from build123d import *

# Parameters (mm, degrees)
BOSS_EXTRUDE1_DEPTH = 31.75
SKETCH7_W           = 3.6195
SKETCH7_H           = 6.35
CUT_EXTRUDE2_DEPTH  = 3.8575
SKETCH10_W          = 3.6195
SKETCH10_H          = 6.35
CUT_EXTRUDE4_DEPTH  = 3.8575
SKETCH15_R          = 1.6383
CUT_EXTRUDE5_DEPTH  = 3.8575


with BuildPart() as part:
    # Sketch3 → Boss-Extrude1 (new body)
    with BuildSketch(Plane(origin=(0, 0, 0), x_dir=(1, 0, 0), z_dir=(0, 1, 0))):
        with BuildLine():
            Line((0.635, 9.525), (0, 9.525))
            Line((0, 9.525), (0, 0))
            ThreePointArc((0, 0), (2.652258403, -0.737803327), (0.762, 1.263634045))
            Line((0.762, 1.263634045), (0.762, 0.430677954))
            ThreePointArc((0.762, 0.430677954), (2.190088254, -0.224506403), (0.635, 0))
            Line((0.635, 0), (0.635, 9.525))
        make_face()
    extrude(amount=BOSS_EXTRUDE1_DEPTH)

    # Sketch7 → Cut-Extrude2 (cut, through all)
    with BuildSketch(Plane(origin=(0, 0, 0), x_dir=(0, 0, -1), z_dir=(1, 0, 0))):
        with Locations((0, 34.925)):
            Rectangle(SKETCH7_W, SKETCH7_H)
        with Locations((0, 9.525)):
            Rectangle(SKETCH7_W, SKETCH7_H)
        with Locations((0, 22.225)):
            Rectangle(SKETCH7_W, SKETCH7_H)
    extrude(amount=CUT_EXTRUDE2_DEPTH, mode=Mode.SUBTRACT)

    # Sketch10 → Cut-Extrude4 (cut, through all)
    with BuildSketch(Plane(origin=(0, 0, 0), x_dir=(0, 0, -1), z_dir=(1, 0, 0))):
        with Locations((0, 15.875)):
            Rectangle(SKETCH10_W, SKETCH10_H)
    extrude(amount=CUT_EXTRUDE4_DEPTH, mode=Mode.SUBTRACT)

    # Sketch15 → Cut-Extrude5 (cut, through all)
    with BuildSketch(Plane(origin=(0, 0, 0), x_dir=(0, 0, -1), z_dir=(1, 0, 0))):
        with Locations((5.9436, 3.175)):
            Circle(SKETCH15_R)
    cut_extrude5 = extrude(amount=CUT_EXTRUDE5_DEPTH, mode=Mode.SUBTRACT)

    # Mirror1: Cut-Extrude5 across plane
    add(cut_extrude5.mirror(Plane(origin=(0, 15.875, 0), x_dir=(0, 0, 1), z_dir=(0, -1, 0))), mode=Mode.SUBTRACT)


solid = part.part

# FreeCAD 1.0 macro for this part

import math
import FreeCAD as App
import Part
import Sketcher
Q = App.Units.Quantity

doc = App.newDocument("Part")
params = doc.addObject("Spreadsheet::Sheet", "Params")
for row, (alias, value) in enumerate([
    ("sketch1_radius", "0.03125 in"),
    ("sketch1_width", "0.025 in"),
    ("sketch1_height", "0.375 in"),
    ("pad1_length", "1.25 in"),
    ("sketch2_width", "0.25 in"),
    ("sketch3_width", "0.25 in"),
    ("sketch4_diameter", "0.129 in"),
], start=1):
    params.set(f"A{row}", alias)
    params.set(f"B{row}", "=" + value)
    params.setAlias(f"B{row}", alias)

body = doc.addObject("PartDesign::Body", "Body")

sketch1 = doc.addObject("Sketcher::SketchObject", "Sketch")
body.addObject(sketch1)
sketch1.AttachmentSupport = (doc.XZ_Plane, [""])
sketch1.MapMode = "FlatFace"
sketch1.addGeometry(Part.LineSegment(App.Vector(0.64, -9.53, 0), App.Vector(0, -9.53, 0)), False)
sketch1.addGeometry(Part.LineSegment(App.Vector(0, -9.53, 0), App.Vector(0, 0, 0)), False)
sketch1.addGeometry(Part.ArcOfCircle(Part.Circle(App.Vector(1.43, 0, 0), App.Vector(0, 0, 1), 1.43), math.radians(-118), math.radians(180)), False)
sketch1.addGeometry(Part.LineSegment(App.Vector(0.76, -1.26, 0), App.Vector(0.76, -0.43, 0)), False)
sketch1.addGeometry(Part.ArcOfCircle(Part.Circle(App.Vector(1.43, 0, 0), App.Vector(0, 0, 1), 0.79), math.radians(-147), math.radians(180)), False)
sketch1.addGeometry(Part.LineSegment(App.Vector(0.64, 0, 0), App.Vector(0.64, -9.53, 0)), False)
sketch1.addConstraint(Sketcher.Constraint("Coincident", 0, 2, 1, 1))
sketch1.addConstraint(Sketcher.Constraint("Tangent", 1, 2, 2, 2))
sketch1.addConstraint(Sketcher.Constraint("Coincident", 2, 1, 3, 1))
sketch1.addConstraint(Sketcher.Constraint("Coincident", 3, 2, 4, 1))
sketch1.addConstraint(Sketcher.Constraint("Tangent", 4, 2, 5, 1))
sketch1.addConstraint(Sketcher.Constraint("Coincident", 5, 2, 0, 1))
sketch1.addConstraint(Sketcher.Constraint("Horizontal", 0))
sketch1.addConstraint(Sketcher.Constraint("Vertical", 1))
sketch1.addConstraint(Sketcher.Constraint("Vertical", 3))
sketch1.addConstraint(Sketcher.Constraint("Vertical", 5))
sketch1.addConstraint(Sketcher.Constraint("Coincident", 1, 2, -1, 1))
sketch1.addConstraint(Sketcher.Constraint("Coincident", 4, 3, 2, 3))
sketch1.addConstraint(Sketcher.Constraint("Radius", 4, Q("0.03125 in")))
sketch1.addConstraint(Sketcher.Constraint("DistanceX", 0, 2, 0, 1, Q("0.025 in")))
sketch1.addConstraint(Sketcher.Constraint("DistanceY", 1, 1, 1, 2, Q("0.375 in")))
sketch1.addConstraint(Sketcher.Constraint("DistanceX", -1, 1, 2, 1, Q("0.03 in")))
sketch1.setExpression("Constraints[12]", "Params.sketch1_radius")
sketch1.setExpression("Constraints[13]", "Params.sketch1_width")
sketch1.setExpression("Constraints[14]", "Params.sketch1_height")
pad1 = doc.addObject("PartDesign::Pad", "Pad")
body.addObject(pad1)
pad1.Profile = sketch1
pad1.setExpression("Length", "Params.pad1_length")
pad1.Reversed = True

sketch2 = doc.addObject("Sketcher::SketchObject", "Sketch001")
body.addObject(sketch2)
sketch2.AttachmentSupport = (doc.YZ_Plane, [""])
sketch2.MapMode = "FlatFace"
sketch2.addGeometry(Part.LineSegment(App.Vector(38.1, 1.8, 0), App.Vector(31.8, 1.8, 0)), False)
sketch2.addGeometry(Part.LineSegment(App.Vector(31.8, 1.8, 0), App.Vector(31.8, -1.8, 0)), False)
sketch2.addGeometry(Part.LineSegment(App.Vector(31.8, -1.8, 0), App.Vector(38.1, -1.8, 0)), False)
sketch2.addGeometry(Part.LineSegment(App.Vector(38.1, -1.8, 0), App.Vector(38.1, 1.8, 0)), False)
sketch2.addGeometry(Part.LineSegment(App.Vector(12.7, 1.8, 0), App.Vector(6.3, 1.8, 0)), False)
sketch2.addGeometry(Part.LineSegment(App.Vector(6.3, 1.8, 0), App.Vector(6.3, -1.8, 0)), False)
sketch2.addGeometry(Part.LineSegment(App.Vector(6.3, -1.8, 0), App.Vector(12.7, -1.8, 0)), False)
sketch2.addGeometry(Part.LineSegment(App.Vector(12.7, -1.8, 0), App.Vector(12.7, 1.8, 0)), False)
sketch2.addGeometry(Part.LineSegment(App.Vector(25.4, 1.8, 0), App.Vector(19.1, 1.8, 0)), False)
sketch2.addGeometry(Part.LineSegment(App.Vector(19.1, 1.8, 0), App.Vector(19.1, -1.8, 0)), False)
sketch2.addGeometry(Part.LineSegment(App.Vector(19.1, -1.8, 0), App.Vector(25.4, -1.8, 0)), False)
sketch2.addGeometry(Part.LineSegment(App.Vector(25.4, -1.8, 0), App.Vector(25.4, 1.8, 0)), False)
sketch2.addConstraint(Sketcher.Constraint("Coincident", 0, 2, 1, 1))
sketch2.addConstraint(Sketcher.Constraint("Coincident", 1, 2, 2, 1))
sketch2.addConstraint(Sketcher.Constraint("Coincident", 2, 2, 3, 1))
sketch2.addConstraint(Sketcher.Constraint("Coincident", 3, 2, 0, 1))
sketch2.addConstraint(Sketcher.Constraint("Coincident", 4, 2, 5, 1))
sketch2.addConstraint(Sketcher.Constraint("Coincident", 5, 2, 6, 1))
sketch2.addConstraint(Sketcher.Constraint("Coincident", 6, 2, 7, 1))
sketch2.addConstraint(Sketcher.Constraint("Coincident", 7, 2, 4, 1))
sketch2.addConstraint(Sketcher.Constraint("Coincident", 8, 2, 9, 1))
sketch2.addConstraint(Sketcher.Constraint("Coincident", 9, 2, 10, 1))
sketch2.addConstraint(Sketcher.Constraint("Coincident", 10, 2, 11, 1))
sketch2.addConstraint(Sketcher.Constraint("Coincident", 11, 2, 8, 1))
sketch2.addConstraint(Sketcher.Constraint("Horizontal", 0))
sketch2.addConstraint(Sketcher.Constraint("Vertical", 1))
sketch2.addConstraint(Sketcher.Constraint("Horizontal", 2))
sketch2.addConstraint(Sketcher.Constraint("Vertical", 3))
sketch2.addConstraint(Sketcher.Constraint("Horizontal", 4))
sketch2.addConstraint(Sketcher.Constraint("Vertical", 5))
sketch2.addConstraint(Sketcher.Constraint("Horizontal", 6))
sketch2.addConstraint(Sketcher.Constraint("Vertical", 7))
sketch2.addConstraint(Sketcher.Constraint("Horizontal", 8))
sketch2.addConstraint(Sketcher.Constraint("Vertical", 9))
sketch2.addConstraint(Sketcher.Constraint("Horizontal", 10))
sketch2.addConstraint(Sketcher.Constraint("Vertical", 11))
sketch2.addConstraint(Sketcher.Constraint("Horizontal", 3, 2, 4, 2))
sketch2.addConstraint(Sketcher.Constraint("Horizontal", 2, 2, 5, 2))
sketch2.addConstraint(Sketcher.Constraint("Horizontal", 7, 2, 8, 2))
sketch2.addConstraint(Sketcher.Constraint("Horizontal", 6, 2, 9, 2))
sketch2.addConstraint(Sketcher.Constraint("Equal", 2, 4))
sketch2.addConstraint(Sketcher.Constraint("Equal", 6, 8))
sketch2.addConstraint(Sketcher.Constraint("DistanceX", -1, 1, 10, 2, Q("1 in")))
sketch2.addConstraint(Sketcher.Constraint("DistanceX", 4, 2, 0, 2, Q("1 in")))
sketch2.addConstraint(Sketcher.Constraint("DistanceX", 0, 2, 0, 1, Q("0.25 in")))
sketch2.addConstraint(Sketcher.Constraint("DistanceX", -1, 1, 2, 2, Q("1.5 in")))
sketch2.addConstraint(Sketcher.Constraint("DistanceY", 1, 2, 1, 1, Q("0.1425 in")))
sketch2.addConstraint(Sketcher.Constraint("DistanceY", -1, 1, 0, 2, 1.80975))
sketch2.setExpression("Constraints[32]", "Params.sketch2_width")
pocket1 = doc.addObject("PartDesign::Pocket", "Pocket")
body.addObject(pocket1)
pocket1.Profile = sketch2
pocket1.Type = "ThroughAll"
pocket1.Reversed = True

sketch3 = doc.addObject("Sketcher::SketchObject", "Sketch002")
body.addObject(sketch3)
sketch3.AttachmentSupport = (doc.YZ_Plane, [""])
sketch3.MapMode = "FlatFace"
sketch3.addGeometry(Part.LineSegment(App.Vector(19.1, 1.8, 0), App.Vector(12.7, 1.8, 0)), False)
sketch3.addGeometry(Part.LineSegment(App.Vector(12.7, 1.8, 0), App.Vector(12.7, -1.8, 0)), False)
sketch3.addGeometry(Part.LineSegment(App.Vector(12.7, -1.8, 0), App.Vector(19.1, -1.8, 0)), False)
sketch3.addGeometry(Part.LineSegment(App.Vector(19.1, -1.8, 0), App.Vector(19.1, 1.8, 0)), False)
sketch3.addConstraint(Sketcher.Constraint("Coincident", 0, 2, 1, 1))
sketch3.addConstraint(Sketcher.Constraint("Coincident", 1, 2, 2, 1))
sketch3.addConstraint(Sketcher.Constraint("Coincident", 2, 2, 3, 1))
sketch3.addConstraint(Sketcher.Constraint("Coincident", 3, 2, 0, 1))
sketch3.addConstraint(Sketcher.Constraint("Horizontal", 0))
sketch3.addConstraint(Sketcher.Constraint("Vertical", 1))
sketch3.addConstraint(Sketcher.Constraint("Horizontal", 2))
sketch3.addConstraint(Sketcher.Constraint("Vertical", 3))
sketch3.addConstraint(Sketcher.Constraint("DistanceX", 0, 2, 0, 1, Q("0.25 in")))
sketch3.addConstraint(Sketcher.Constraint("DistanceX", -1, 1, 0, 2, Q("0.5 in")))
sketch3.addConstraint(Sketcher.Constraint("DistanceY", 1, 2, 1, 1, Q("0.1425 in")))
sketch3.addConstraint(Sketcher.Constraint("DistanceY", -1, 1, 0, 2, 1.80975))
sketch3.setExpression("Constraints[8]", "Params.sketch3_width")
pocket2 = doc.addObject("PartDesign::Pocket", "Pocket001")
body.addObject(pocket2)
pocket2.Profile = sketch3
pocket2.Type = "ThroughAll"
pocket2.Reversed = True

sketch4 = doc.addObject("Sketcher::SketchObject", "Sketch003")
body.addObject(sketch4)
sketch4.AttachmentSupport = (doc.YZ_Plane, [""])
sketch4.MapMode = "FlatFace"
sketch4.addGeometry(Part.Circle(App.Vector(3.2, -5.9, 0), App.Vector(0, 0, 1), 1.6), False)
sketch4.addConstraint(Sketcher.Constraint("Diameter", 0, Q("0.129 in")))
sketch4.addConstraint(Sketcher.Constraint("DistanceX", -1, 1, 0, 3, Q("0.125 in")))
sketch4.addConstraint(Sketcher.Constraint("DistanceY", 0, 3, -1, 1, Q("0.234 in")))
sketch4.setExpression("Constraints[0]", "Params.sketch4_diameter")
pocket3 = doc.addObject("PartDesign::Pocket", "Pocket002")
body.addObject(pocket3)
pocket3.Profile = sketch4
pocket3.Type = "ThroughAll"
pocket3.Reversed = True
doc.recompute()

datumplane = doc.addObject("PartDesign::Plane", "DatumPlane")
body.addObject(datumplane)
datumplane.AttachmentSupport = (doc.XZ_Plane, [""])
datumplane.MapMode = "FlatFace"
datumplane.AttachmentOffset = App.Placement(App.Vector(0, 0, -0.625 * 25.4), App.Rotation())
mirrored = doc.addObject("PartDesign::Mirrored", "Mirrored")
body.addObject(mirrored)
mirrored.Originals = [pocket3]
mirrored.MirrorPlane = (datumplane, [""])
body.Tip = mirrored

doc.recompute()
